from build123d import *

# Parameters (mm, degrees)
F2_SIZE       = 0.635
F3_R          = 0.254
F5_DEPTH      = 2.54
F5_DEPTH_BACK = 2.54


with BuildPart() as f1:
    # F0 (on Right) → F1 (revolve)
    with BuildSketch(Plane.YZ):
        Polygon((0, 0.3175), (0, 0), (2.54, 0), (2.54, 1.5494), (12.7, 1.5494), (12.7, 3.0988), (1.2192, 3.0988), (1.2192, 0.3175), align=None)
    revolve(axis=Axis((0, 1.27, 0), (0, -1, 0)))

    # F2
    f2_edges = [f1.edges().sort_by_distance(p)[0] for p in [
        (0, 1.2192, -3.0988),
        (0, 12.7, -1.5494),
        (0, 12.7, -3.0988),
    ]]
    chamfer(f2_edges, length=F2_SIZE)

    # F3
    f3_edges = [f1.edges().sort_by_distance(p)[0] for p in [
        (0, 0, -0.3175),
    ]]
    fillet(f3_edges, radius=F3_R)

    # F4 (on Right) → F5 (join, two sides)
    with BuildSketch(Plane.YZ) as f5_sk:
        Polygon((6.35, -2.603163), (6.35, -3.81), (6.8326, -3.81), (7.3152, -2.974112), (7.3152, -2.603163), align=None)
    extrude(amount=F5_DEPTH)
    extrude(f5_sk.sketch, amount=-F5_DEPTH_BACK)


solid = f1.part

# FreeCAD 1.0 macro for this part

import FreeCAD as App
import Part
import Sketcher

V = App.Vector
Q = App.Units.Quantity


def edges_at(feature, points):
    """Names of the edges that pass closest to the given points."""
    edges = feature.Shape.Edges
    near = lambda p: min(range(len(edges)), key=lambda i: edges[i].distToShape(Part.Vertex(*p))[0])
    return sorted({f"Edge{near(p) + 1}" for p in points})

doc = App.newDocument("Part")
body = doc.addObject("PartDesign::Body", "Body")

sketch1 = body.newObject("Sketcher::SketchObject", "Sketch")
sketch1.AttachmentSupport = (doc.getObject("YZ_Plane"), [""])
sketch1.MapMode = "FlatFace"
sketch1.addGeometry([
    Part.LineSegment(V(0, 0.3175, 0), V(0, 0, 0)),
    Part.LineSegment(V(0, 0, 0), V(2.54, 0, 0)),
    Part.LineSegment(V(2.54, 0, 0), V(2.54, 1.5494, 0)),
    Part.LineSegment(V(2.54, 1.5494, 0), V(12.7, 1.5494, 0)),
    Part.LineSegment(V(12.7, 1.5494, 0), V(12.7, 3.0988, 0)),
    Part.LineSegment(V(12.7, 3.0988, 0), V(1.2192, 3.0988, 0)),
    Part.LineSegment(V(1.2192, 3.0988, 0), V(1.2192, 0.3175, 0)),
    Part.LineSegment(V(1.2192, 0.3175, 0), V(0, 0.3175, 0)),
], False)
sketch1.addConstraint([
    Sketcher.Constraint("Coincident", 0, 2, 1, 1),
    Sketcher.Constraint("Coincident", 1, 2, 2, 1),
    Sketcher.Constraint("Coincident", 2, 2, 3, 1),
    Sketcher.Constraint("Coincident", 3, 2, 4, 1),
    Sketcher.Constraint("Coincident", 4, 2, 5, 1),
    Sketcher.Constraint("Coincident", 5, 2, 6, 1),
    Sketcher.Constraint("Coincident", 6, 2, 7, 1),
    Sketcher.Constraint("Coincident", 7, 2, 0, 1),
    Sketcher.Constraint("Vertical", 0),
    Sketcher.Constraint("Horizontal", 1),
    Sketcher.Constraint("Vertical", 2),
    Sketcher.Constraint("Horizontal", 3),
    Sketcher.Constraint("Vertical", 4),
    Sketcher.Constraint("Horizontal", 5),
    Sketcher.Constraint("Vertical", 6),
    Sketcher.Constraint("Horizontal", 7),
    Sketcher.Constraint("Coincident", 0, 2, -1, 1),
    Sketcher.Constraint("Equal", 2, 4),
    Sketcher.Constraint("DistanceX", 1, 1, 1, 2, Q("0.1 in")),
    Sketcher.Constraint("DistanceX", 3, 1, 3, 2, Q("0.4 in")),
    Sketcher.Constraint("DistanceX", 5, 2, 5, 1, Q("0.452 in")),
    Sketcher.Constraint("DistanceY", 2, 1, 2, 2, Q("0.061 in")),
    Sketcher.Constraint("DistanceY", 0, 2, 0, 1, Q("0.0125 in")),
])
revolution = body.newObject("PartDesign::Revolution", "Revolution")
revolution.Profile = sketch1
revolution.ReferenceAxis = (sketch1, ["H_Axis"])
revolution.Angle = 360
doc.recompute()

chamfer = body.newObject("PartDesign::Chamfer", "Chamfer")
chamfer.Base = (revolution, edges_at(revolution, [(0, 1.219, -3.099), (0, 12.7, -1.549), (0, 12.7, -3.099)]))
chamfer.Size = Q("0.025 in")
doc.recompute()

fillet = body.newObject("PartDesign::Fillet", "Fillet")
fillet.Base = (chamfer, edges_at(chamfer, [(0, 0, -0.318)]))
fillet.Radius = Q("0.01 in")

sketch2 = body.newObject("Sketcher::SketchObject", "Sketch001")
sketch2.AttachmentSupport = (doc.getObject("YZ_Plane"), [""])
sketch2.MapMode = "FlatFace"
sketch2.addGeometry([
    Part.LineSegment(V(6.35, -2.603163, 0), V(6.35, -3.81, 0)),
    Part.LineSegment(V(6.35, -3.81, 0), V(6.8326, -3.81, 0)),
    Part.LineSegment(V(6.8326, -3.81, 0), V(7.3152, -2.974112, 0)),
    Part.LineSegment(V(7.3152, -2.974112, 0), V(7.3152, -2.603163, 0)),
    Part.LineSegment(V(7.3152, -2.603163, 0), V(6.35, -2.603163, 0)),
], False)
sketch2.addConstraint([
    Sketcher.Constraint("Coincident", 0, 2, 1, 1),
    Sketcher.Constraint("Coincident", 1, 2, 2, 1),
    Sketcher.Constraint("Coincident", 2, 2, 3, 1),
    Sketcher.Constraint("Coincident", 3, 2, 4, 1),
    Sketcher.Constraint("Coincident", 4, 2, 0, 1),
    Sketcher.Constraint("Vertical", 0),
    Sketcher.Constraint("Horizontal", 1),
    Sketcher.Constraint("Vertical", 3),
    Sketcher.Constraint("Horizontal", 4),
    Sketcher.Constraint("Angle", 2, Q("60.000008 deg")),
    Sketcher.Constraint("DistanceX", 1, 1, 1, 2, Q("0.019 in")),
    Sketcher.Constraint("DistanceX", 4, 2, 4, 1, Q("0.038 in")),
    Sketcher.Constraint("DistanceX", -1, 1, 0, 2, Q("0.25 in")),
    Sketcher.Constraint("DistanceY", 0, 2, -1, 1, Q("0.15 in")),
    Sketcher.Constraint("DistanceY", 3, 1, 3, 2, 0.370949),
])
pad1 = body.newObject("PartDesign::Pad", "Pad")
pad1.Profile = sketch2
pad1.Type = "TwoLengths"
pad1.Length = Q("0.1 in")
pad1.Length2 = Q("0.1 in")

doc.recompute()
